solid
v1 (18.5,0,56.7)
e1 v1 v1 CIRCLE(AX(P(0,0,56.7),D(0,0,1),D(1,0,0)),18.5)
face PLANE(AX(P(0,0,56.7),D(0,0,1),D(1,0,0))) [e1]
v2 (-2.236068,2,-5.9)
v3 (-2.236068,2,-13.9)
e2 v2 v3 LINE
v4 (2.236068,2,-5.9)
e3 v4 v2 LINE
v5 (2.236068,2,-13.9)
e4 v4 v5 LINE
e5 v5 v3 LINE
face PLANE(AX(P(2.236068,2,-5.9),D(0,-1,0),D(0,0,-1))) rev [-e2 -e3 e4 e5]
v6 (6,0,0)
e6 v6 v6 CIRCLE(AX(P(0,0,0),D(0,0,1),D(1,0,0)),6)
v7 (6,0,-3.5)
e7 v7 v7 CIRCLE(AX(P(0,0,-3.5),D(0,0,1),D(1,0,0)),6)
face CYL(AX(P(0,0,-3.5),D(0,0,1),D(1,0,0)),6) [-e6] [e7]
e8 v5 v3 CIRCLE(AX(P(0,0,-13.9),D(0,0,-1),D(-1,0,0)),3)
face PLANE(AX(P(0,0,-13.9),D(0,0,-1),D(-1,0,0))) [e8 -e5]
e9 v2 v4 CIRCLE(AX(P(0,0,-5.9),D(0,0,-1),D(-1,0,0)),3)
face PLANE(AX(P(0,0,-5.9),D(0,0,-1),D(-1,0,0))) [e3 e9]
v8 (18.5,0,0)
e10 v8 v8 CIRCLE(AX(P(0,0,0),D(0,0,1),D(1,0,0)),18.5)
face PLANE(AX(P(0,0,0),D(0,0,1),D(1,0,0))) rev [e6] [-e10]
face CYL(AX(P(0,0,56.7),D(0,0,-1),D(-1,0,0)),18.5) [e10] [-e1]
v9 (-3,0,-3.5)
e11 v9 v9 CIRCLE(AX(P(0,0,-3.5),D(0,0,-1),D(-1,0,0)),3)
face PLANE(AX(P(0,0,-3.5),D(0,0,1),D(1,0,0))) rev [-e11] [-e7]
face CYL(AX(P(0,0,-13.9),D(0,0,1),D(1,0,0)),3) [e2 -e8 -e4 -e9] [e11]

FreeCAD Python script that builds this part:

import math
import FreeCAD as App
import Part
import Sketcher

doc = App.newDocument("Part")
body = doc.addObject("PartDesign::Body", "Body")

# Sketch on XY plane
sketch1 = body.newObject("Sketcher::SketchObject", "Sketch")
sketch1.AttachmentSupport = (doc.getObject("XY_Plane"), [""])
sketch1.MapMode = "FlatFace"
sketch1.addGeometry(Part.Circle(App.Vector(0, 0, 0), App.Vector(0, 0, 1), 18), False)
sketch1.addConstraint([
    Sketcher.Constraint("Coincident", 0, 3, -1, 1),
    Sketcher.Constraint("Diameter", 0, 37.0),
])
pad1 = body.newObject("PartDesign::Pad", "Pad")
pad1.Profile = sketch1
pad1.Length = 56.7

# Sketch on XY plane
sketch2 = body.newObject("Sketcher::SketchObject", "Sketch001")
sketch2.AttachmentSupport = (doc.getObject("XY_Plane"), [""])
sketch2.MapMode = "FlatFace"
sketch2.addGeometry(Part.Circle(App.Vector(0, 0, 0), App.Vector(0, 0, 1), 6), False)
sketch2.addConstraint([
    Sketcher.Constraint("Coincident", 0, 3, -1, 1),
    Sketcher.Constraint("Diameter", 0, 12.0),
])
pad2 = body.newObject("PartDesign::Pad", "Pad001")
pad2.Profile = sketch2
pad2.Length = 3.5
pad2.Reversed = True

# Sketch on XY plane
sketch3 = body.newObject("Sketcher::SketchObject", "Sketch002")
sketch3.AttachmentSupport = (doc.getObject("XY_Plane"), [""])
sketch3.MapMode = "FlatFace"
sketch3.AttachmentOffset = App.Placement(App.Vector(0, 0, -3.5), App.Rotation())
sketch3.addGeometry(Part.Circle(App.Vector(0, 0, 0), App.Vector(0, 0, 1), 3), False)
sketch3.addConstraint([
    Sketcher.Constraint("Coincident", 0, 3, -1, 1),
    Sketcher.Constraint("Diameter", 0, 6.0),
])
pad3 = body.newObject("PartDesign::Pad", "Pad002")
pad3.Profile = sketch3
pad3.Length = 10.4
pad3.Reversed = True

# Sketch on XY plane
sketch4 = body.newObject("Sketcher::SketchObject", "Sketch003")
sketch4.AttachmentSupport = (doc.getObject("XY_Plane"), [""])
sketch4.MapMode = "FlatFace"
sketch4.AttachmentOffset = App.Placement(App.Vector(0, 0, -5.9), App.Rotation())
sketch4.addGeometry([
    Part.LineSegment(App.Vector(2.2, 2, 0), App.Vector(-2.2, 2, 0)),
    Part.ArcOfCircle(Part.Circle(App.Vector(0, 0, 0), App.Vector(0, 0, 1), 3), math.radians(42), math.radians(138)),
], False)
sketch4.addConstraint([
    Sketcher.Constraint("Coincident", 0, 1, 1, 1),
    Sketcher.Constraint("Coincident", 1, 2, 0, 2),
    Sketcher.Constraint("Horizontal", 0),
    Sketcher.Constraint("Coincident", 1, 3, -1, 1),
    Sketcher.Constraint("Radius", 1, 3.0),
    Sketcher.Constraint("DistanceY", -1, 1, 0, 1, 2.0),
])
pocket1 = body.newObject("PartDesign::Pocket", "Pocket")
pocket1.Profile = sketch4
pocket1.Length = 8

doc.recompute()
